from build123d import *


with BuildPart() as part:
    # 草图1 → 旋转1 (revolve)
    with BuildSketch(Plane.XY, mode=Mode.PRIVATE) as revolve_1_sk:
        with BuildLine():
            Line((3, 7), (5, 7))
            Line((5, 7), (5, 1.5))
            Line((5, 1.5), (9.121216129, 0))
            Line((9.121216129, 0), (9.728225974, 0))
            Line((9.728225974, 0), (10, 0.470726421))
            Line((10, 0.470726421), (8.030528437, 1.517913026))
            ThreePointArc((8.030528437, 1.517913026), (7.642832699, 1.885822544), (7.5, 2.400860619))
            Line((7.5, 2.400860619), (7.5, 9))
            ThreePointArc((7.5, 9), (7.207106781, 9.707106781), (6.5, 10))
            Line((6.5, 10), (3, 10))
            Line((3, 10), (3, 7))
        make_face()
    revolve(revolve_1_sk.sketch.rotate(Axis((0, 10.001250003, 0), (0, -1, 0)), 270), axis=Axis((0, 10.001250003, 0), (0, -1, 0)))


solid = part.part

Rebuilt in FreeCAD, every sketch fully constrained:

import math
import FreeCAD as App
import Part
import Sketcher
from FreeCAD import Vector
Q = App.Units.Quantity

doc = App.newDocument("Part")
body = doc.addObject("PartDesign::Body", "Body")

sketch1 = doc.addObject("Sketcher::SketchObject", "Sketch")
body.addObject(sketch1)
sketch1.AttachmentSupport = (doc.XY_Plane, [""])
sketch1.MapMode = "FlatFace"
sketch1.addGeometry([
    Part.LineSegment(Vector(3, 7, 0), Vector(5, 7, 0)),
    Part.LineSegment(Vector(5, 7, 0), Vector(5, 1.5, 0)),
    Part.LineSegment(Vector(5, 1.5, 0), Vector(9.121216, 0, 0)),
    Part.LineSegment(Vector(9.121216, 0, 0), Vector(9.728226, 0, 0)),
    Part.LineSegment(Vector(9.728226, 0, 0), Vector(10, 0.470726, 0)),
    Part.LineSegment(Vector(10, 0.470726, 0), Vector(8.030528, 1.517913, 0)),
    Part.ArcOfCircle(Part.Circle(Vector(8.5, 2.400861, 0), Vector(0, 0, 1), 1), math.radians(180), math.radians(242)),
    Part.LineSegment(Vector(7.5, 2.400861, 0), Vector(7.5, 9, 0)),
    Part.ArcOfCircle(Part.Circle(Vector(6.5, 9, 0), Vector(0, 0, 1), 1), math.radians(0), math.radians(90)),
    Part.LineSegment(Vector(6.5, 10, 0), Vector(3, 10, 0)),
    Part.LineSegment(Vector(3, 10, 0), Vector(3, 7, 0)),
], False)
sketch1.addConstraint([
    Sketcher.Constraint("Coincident", 0, 2, 1, 1),
    Sketcher.Constraint("Coincident", 1, 2, 2, 1),
    Sketcher.Constraint("Coincident", 2, 2, 3, 1),
    Sketcher.Constraint("Coincident", 3, 2, 4, 1),
    Sketcher.Constraint("Coincident", 4, 2, 5, 1),
    Sketcher.Constraint("Tangent", 5, 2, 6, 2),
    Sketcher.Constraint("Tangent", 6, 1, 7, 1),
    Sketcher.Constraint("Tangent", 7, 2, 8, 1),
    Sketcher.Constraint("Tangent", 8, 2, 9, 1),
    Sketcher.Constraint("Coincident", 9, 2, 10, 1),
    Sketcher.Constraint("Coincident", 10, 2, 0, 1),
    Sketcher.Constraint("Horizontal", 0),
    Sketcher.Constraint("Vertical", 1),
    Sketcher.Constraint("Horizontal", 3),
    Sketcher.Constraint("Vertical", 7),
    Sketcher.Constraint("Horizontal", 9),
    Sketcher.Constraint("Vertical", 10),
    Sketcher.Constraint("Equal", 6, 8),
    Sketcher.Constraint("PointOnObject", 2, 2, -1),
    Sketcher.Constraint("Radius", 6, Q("1 mm")),
    Sketcher.Constraint("DistanceX", 0, 1, 0, 2, Q("2 mm")),
    Sketcher.Constraint("DistanceY", 10, 2, 10, 1, Q("3 mm")),
    Sketcher.Constraint("Angle", 2, Q("-20 deg")),
    Sketcher.Constraint("Angle", 4, Q("60 deg")),
    Sketcher.Constraint("Angle", 5, Q("152 deg")),
    Sketcher.Constraint("DistanceX", 9, 2, 9, 1, Q("3.5 mm")),
    Sketcher.Constraint("DistanceY", 1, 2, 1, 1, Q("5.5 mm")),
    Sketcher.Constraint("DistanceY", -1, 1, 8, 3, Q("9 mm")),
    Sketcher.Constraint("DistanceX", -1, 1, 0, 2, Q("5 mm")),
    Sketcher.Constraint("DistanceX", -1, 1, 4, 2, Q("10 mm")),
    Sketcher.Constraint("DistanceX", 3, 1, 3, 2, Q("0.60701 mm")),
])
revolution = doc.addObject("PartDesign::Revolution", "Revolution")
body.addObject(revolution)
revolution.Profile = sketch1
revolution.ReferenceAxis = (sketch1, ["V_Axis"])
revolution.Angle = 360

doc.recompute()
